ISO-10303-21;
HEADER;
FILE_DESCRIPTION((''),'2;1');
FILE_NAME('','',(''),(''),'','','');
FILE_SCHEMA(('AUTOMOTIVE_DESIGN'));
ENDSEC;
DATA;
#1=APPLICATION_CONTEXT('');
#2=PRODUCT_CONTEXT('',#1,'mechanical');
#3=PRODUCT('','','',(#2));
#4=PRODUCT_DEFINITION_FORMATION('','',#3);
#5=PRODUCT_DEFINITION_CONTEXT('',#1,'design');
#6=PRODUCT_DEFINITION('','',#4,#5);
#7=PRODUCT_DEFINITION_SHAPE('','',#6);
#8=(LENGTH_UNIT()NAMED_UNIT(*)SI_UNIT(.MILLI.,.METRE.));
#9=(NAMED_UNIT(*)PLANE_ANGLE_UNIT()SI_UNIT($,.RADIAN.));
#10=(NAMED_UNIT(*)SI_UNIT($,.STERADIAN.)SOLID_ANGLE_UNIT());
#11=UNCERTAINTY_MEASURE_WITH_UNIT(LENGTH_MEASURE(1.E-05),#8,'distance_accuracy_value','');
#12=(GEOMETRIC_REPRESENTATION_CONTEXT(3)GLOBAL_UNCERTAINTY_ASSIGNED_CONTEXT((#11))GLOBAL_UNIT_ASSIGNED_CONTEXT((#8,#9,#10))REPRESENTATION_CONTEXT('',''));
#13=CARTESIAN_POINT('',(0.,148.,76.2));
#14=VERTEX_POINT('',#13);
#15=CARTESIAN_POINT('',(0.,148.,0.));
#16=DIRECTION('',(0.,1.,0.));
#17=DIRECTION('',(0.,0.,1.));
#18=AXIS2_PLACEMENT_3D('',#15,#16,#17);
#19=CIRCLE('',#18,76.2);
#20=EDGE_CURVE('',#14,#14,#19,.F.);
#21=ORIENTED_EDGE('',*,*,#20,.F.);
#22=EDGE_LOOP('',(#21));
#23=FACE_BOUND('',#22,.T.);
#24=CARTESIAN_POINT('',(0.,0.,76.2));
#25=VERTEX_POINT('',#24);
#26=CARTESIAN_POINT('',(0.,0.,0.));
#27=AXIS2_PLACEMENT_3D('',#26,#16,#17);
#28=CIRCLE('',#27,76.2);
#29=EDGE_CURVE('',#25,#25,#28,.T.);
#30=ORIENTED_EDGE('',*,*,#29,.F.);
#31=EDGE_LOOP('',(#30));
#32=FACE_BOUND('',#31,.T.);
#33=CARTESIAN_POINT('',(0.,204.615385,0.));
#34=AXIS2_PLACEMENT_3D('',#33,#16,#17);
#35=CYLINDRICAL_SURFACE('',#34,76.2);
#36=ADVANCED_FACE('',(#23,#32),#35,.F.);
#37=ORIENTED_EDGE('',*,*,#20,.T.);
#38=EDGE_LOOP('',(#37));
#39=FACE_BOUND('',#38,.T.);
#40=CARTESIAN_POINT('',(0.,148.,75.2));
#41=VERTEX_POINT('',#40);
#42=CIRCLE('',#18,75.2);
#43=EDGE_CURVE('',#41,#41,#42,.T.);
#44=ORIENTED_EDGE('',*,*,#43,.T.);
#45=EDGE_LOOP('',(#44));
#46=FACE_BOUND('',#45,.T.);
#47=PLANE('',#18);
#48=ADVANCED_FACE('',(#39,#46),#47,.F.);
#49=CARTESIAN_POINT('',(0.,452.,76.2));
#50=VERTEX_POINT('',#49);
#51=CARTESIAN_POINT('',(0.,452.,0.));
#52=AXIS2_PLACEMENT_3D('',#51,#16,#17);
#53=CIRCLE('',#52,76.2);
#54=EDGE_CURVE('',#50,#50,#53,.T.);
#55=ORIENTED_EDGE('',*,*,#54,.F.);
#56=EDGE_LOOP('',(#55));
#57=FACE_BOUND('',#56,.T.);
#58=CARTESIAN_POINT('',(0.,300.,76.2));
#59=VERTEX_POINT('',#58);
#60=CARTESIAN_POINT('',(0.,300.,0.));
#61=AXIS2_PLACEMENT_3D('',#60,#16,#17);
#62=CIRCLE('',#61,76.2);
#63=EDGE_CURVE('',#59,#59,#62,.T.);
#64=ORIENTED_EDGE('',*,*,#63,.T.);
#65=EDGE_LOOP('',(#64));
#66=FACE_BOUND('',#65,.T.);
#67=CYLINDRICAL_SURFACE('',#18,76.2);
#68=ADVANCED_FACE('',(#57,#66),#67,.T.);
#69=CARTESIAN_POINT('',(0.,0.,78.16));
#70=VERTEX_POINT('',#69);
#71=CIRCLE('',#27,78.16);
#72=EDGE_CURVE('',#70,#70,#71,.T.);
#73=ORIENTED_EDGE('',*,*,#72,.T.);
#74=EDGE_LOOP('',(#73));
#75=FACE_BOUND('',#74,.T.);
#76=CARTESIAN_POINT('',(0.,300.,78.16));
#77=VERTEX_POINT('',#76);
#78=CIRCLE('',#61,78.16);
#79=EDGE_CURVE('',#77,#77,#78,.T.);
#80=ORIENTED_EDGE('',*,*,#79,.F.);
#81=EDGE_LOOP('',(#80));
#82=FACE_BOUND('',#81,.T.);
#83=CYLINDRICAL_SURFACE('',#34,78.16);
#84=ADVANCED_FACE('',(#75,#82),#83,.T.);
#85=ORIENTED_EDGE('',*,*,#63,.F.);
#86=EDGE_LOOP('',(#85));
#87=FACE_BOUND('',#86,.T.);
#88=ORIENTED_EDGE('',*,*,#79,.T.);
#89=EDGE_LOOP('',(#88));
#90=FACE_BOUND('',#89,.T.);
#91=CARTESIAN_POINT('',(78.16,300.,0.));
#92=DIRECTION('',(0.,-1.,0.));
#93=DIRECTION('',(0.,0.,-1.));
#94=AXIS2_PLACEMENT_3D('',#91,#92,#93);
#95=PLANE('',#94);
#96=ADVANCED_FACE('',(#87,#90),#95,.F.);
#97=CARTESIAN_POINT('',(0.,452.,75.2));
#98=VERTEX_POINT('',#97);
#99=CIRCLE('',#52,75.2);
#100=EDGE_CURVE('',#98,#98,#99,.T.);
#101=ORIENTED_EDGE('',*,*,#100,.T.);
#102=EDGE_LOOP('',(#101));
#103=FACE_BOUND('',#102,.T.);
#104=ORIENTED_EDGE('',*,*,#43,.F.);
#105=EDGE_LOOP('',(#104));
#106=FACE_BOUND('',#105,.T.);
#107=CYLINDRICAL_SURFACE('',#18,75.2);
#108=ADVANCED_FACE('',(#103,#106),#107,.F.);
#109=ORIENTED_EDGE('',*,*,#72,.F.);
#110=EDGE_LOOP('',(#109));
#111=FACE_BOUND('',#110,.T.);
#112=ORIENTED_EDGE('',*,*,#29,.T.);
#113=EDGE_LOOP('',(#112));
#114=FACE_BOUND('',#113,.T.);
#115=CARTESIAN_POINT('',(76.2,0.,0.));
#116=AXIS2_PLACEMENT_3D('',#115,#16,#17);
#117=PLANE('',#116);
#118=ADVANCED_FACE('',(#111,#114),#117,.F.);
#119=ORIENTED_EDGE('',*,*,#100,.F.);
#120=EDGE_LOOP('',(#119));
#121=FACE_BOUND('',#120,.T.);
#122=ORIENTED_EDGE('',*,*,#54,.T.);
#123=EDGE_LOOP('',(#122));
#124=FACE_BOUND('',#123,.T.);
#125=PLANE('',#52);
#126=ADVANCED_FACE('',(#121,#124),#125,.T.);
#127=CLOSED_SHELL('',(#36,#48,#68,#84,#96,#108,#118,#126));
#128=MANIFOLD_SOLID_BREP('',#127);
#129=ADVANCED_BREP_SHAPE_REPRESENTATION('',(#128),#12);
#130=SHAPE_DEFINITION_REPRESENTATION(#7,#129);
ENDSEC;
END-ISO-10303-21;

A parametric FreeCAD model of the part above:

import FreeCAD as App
import Part
import Sketcher
from FreeCAD import Vector


def add_polygon(sketch, points):
    """Adds a closed chain of lines whose ends are joined by coincident constraints."""
    first, n = sketch.GeometryCount, len(points)
    for a, b in zip(points, points[1:] + points[:1]):
        sketch.addGeometry(Part.LineSegment(App.Vector(*a, 0), App.Vector(*b, 0)), False)
    for i in range(n):
        sketch.addConstraint(Sketcher.Constraint("Coincident", first + i, 2, first + (i + 1) % n, 1))

doc = App.newDocument("Part")
body = doc.addObject("PartDesign::Body", "Body")

# Sketch on XY plane
sketch1 = body.newObject("Sketcher::SketchObject", "Sketch")
sketch1.AttachmentSupport = (doc.getObject("XY_Plane"), [""])
sketch1.MapMode = "FlatFace"
add_polygon(sketch1, [(76.2, 300), (76.2, 0), (78.2, 0), (78.2, 300)])  # lines 0-3
sketch1.addConstraint([
    Sketcher.Constraint("Vertical", 0),
    Sketcher.Constraint("Horizontal", 1),
    Sketcher.Constraint("Vertical", 2),
    Sketcher.Constraint("Horizontal", 3),
    Sketcher.Constraint("PointOnObject", 0, 2, -1),
    Sketcher.Constraint("DistanceY", 0, 2, 0, 1, 300.0),
    Sketcher.Constraint("DistanceX", 1, 1, 1, 2, 1.96),
    Sketcher.Constraint("DistanceX", -1, 1, 0, 2, 76.2),
])
revolution = body.newObject("PartDesign::Revolution", "Revolution")
revolution.Profile = sketch1
revolution.ReferenceAxis = (sketch1, ["V_Axis"])
revolution.Angle = 360

# Sketch on XZ plane
sketch2 = body.newObject("Sketcher::SketchObject", "Sketch001")
sketch2.AttachmentSupport = (doc.getObject("XZ_Plane"), [""])
sketch2.MapMode = "FlatFace"
sketch2.AttachmentOffset = App.Placement(Vector(0, 0, -300), App.Rotation())
sketch2.addGeometry([
    Part.Circle(Vector(0, 0, 0), Vector(0, 0, 1), 76),
    Part.Circle(Vector(0, 0, 0), Vector(0, 0, 1), 75),
], False)
sketch2.addConstraint([
    Sketcher.Constraint("Coincident", 0, 3, -1, 1),
    Sketcher.Constraint("Coincident", 1, 3, -1, 1),
    Sketcher.Constraint("Diameter", 0, 152.4),
    Sketcher.Constraint("Diameter", 1, 150.4),
])
pad1 = body.newObject("PartDesign::Pad", "Pad")
pad1.Profile = sketch2
pad1.Type = "TwoLengths"
pad1.Length = 152
pad1.Length2 = 152
pad1.Reversed = True

doc.recompute()
